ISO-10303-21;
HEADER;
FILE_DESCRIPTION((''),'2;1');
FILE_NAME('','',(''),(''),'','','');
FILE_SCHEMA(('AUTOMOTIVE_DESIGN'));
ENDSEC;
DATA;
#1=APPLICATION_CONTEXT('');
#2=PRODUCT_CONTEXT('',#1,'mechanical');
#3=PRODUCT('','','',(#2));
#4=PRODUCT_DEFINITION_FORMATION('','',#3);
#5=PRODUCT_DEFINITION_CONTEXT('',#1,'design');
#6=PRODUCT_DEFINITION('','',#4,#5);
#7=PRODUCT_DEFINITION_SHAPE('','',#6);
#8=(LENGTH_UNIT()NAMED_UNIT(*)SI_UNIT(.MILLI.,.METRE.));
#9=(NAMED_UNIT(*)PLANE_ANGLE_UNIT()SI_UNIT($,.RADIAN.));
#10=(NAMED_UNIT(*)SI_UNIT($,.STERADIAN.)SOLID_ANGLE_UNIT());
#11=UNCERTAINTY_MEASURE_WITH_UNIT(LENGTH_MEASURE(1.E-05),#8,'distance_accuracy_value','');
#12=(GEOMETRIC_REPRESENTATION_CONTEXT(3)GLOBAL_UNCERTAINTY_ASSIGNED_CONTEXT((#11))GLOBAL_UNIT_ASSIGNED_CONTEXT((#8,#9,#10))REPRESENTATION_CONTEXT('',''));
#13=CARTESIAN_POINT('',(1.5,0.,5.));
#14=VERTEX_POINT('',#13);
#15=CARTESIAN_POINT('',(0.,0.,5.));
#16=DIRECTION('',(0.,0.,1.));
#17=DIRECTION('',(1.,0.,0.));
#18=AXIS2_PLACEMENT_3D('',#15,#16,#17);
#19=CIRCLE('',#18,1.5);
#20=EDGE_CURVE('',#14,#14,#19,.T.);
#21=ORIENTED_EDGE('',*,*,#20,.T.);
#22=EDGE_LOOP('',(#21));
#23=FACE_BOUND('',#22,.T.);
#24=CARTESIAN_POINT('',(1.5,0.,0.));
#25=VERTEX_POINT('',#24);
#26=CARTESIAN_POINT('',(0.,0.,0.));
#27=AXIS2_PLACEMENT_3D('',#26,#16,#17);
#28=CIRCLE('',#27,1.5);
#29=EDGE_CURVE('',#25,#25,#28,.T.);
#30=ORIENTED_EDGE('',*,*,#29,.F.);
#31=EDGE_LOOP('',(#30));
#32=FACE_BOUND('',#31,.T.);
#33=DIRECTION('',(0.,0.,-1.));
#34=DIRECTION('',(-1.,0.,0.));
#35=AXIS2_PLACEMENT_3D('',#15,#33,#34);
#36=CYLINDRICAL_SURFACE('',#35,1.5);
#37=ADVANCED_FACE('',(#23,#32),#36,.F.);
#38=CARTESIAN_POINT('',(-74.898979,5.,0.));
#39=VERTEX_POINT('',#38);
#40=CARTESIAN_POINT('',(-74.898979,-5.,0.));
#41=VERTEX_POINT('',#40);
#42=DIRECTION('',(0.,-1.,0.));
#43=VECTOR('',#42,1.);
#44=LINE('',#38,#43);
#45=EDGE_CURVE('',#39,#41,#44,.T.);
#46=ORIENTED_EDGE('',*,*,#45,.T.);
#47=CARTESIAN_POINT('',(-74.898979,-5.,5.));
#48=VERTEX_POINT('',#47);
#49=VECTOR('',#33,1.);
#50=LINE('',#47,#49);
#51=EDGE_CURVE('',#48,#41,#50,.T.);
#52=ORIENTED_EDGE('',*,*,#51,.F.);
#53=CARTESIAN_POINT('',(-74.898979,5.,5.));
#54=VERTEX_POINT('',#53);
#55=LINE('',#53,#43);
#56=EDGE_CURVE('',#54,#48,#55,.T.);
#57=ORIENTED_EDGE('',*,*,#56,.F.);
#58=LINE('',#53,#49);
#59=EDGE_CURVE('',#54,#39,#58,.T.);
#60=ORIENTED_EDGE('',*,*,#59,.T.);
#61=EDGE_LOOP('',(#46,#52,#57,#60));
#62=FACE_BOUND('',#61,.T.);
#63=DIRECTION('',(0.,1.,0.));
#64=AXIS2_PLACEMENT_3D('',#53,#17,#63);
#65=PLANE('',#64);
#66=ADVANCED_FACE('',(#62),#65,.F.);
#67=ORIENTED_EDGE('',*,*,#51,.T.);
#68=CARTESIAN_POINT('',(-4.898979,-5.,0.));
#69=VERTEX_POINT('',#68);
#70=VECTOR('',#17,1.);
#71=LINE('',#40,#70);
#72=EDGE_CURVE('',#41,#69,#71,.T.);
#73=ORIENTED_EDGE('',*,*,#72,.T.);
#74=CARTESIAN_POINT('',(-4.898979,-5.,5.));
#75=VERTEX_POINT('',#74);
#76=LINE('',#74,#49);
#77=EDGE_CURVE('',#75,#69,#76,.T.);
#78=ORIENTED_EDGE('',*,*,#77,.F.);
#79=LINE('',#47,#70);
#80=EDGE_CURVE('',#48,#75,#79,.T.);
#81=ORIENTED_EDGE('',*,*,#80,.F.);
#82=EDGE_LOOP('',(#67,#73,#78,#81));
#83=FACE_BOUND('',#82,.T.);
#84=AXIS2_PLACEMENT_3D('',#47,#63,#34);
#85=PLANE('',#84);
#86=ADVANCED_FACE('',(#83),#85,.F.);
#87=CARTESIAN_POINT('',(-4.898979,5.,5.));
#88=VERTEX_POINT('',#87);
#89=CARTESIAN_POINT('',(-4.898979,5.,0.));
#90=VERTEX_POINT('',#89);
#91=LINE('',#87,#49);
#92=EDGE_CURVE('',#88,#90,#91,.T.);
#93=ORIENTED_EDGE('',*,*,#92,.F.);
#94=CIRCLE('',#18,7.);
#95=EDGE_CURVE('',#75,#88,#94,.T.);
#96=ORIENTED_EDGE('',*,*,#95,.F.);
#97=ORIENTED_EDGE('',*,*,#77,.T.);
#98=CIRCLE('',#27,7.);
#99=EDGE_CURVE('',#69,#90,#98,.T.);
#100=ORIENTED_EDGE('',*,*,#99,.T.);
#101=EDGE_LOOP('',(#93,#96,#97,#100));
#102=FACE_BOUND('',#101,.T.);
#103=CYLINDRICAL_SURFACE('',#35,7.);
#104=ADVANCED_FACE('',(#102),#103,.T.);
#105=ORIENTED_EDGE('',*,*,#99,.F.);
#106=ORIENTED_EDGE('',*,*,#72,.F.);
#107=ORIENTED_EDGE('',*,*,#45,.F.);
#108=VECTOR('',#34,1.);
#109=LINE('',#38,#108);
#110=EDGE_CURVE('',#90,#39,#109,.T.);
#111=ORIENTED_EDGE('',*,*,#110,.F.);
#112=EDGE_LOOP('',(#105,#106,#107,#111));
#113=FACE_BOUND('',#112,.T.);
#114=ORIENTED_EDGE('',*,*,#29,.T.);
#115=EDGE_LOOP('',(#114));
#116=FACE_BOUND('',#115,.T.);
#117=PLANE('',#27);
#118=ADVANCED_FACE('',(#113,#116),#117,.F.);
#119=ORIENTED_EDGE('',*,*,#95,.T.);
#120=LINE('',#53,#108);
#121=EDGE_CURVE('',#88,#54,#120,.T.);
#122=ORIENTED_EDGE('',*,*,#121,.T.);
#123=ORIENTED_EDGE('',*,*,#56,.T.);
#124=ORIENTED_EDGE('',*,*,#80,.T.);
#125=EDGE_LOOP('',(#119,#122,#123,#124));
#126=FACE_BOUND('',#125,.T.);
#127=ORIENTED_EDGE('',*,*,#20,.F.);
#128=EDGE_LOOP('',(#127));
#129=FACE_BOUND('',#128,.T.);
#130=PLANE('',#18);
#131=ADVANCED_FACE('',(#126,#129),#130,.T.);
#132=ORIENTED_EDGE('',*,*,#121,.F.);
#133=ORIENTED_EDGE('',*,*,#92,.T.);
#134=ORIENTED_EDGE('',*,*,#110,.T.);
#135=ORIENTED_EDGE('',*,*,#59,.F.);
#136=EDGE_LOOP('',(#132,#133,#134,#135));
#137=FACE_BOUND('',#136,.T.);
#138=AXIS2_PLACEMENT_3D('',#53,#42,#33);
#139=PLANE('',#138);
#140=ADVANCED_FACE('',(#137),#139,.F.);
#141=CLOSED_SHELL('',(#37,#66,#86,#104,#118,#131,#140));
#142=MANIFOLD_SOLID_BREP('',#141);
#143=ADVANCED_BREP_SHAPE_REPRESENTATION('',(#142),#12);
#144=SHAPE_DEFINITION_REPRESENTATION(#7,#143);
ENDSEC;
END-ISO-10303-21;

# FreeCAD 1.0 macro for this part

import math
import FreeCAD as App
import Part
import Sketcher

V = App.Vector

doc = App.newDocument("Part")
body = doc.addObject("PartDesign::Body", "Body")

sketch1 = body.newObject("Sketcher::SketchObject", "Sketch")
sketch1.AttachmentSupport = (doc.getObject("XY_Plane"), [""])
sketch1.MapMode = "FlatFace"
sketch1.addGeometry(Part.LineSegment(V(-4.898979, 5, 0), V(-74.898979, 5, 0)), False)
sketch1.addGeometry(Part.LineSegment(V(-74.898979, 5, 0), V(-74.898979, -5, 0)), False)
sketch1.addGeometry(Part.LineSegment(V(-74.898979, -5, 0), V(-4.898979, -5, 0)), False)
sketch1.addGeometry(Part.ArcOfCircle(Part.Circle(V(0, 0, 0), V(0, 0, 1), 7), math.radians(-134.415309), math.radians(134.415309)), False)
sketch1.addGeometry(Part.Circle(V(0, 0, 0), V(0, 0, 1), 1.5), False)
sketch1.addConstraint(Sketcher.Constraint("Coincident", 0, 2, 1, 1))
sketch1.addConstraint(Sketcher.Constraint("Coincident", 1, 2, 2, 1))
sketch1.addConstraint(Sketcher.Constraint("Coincident", 2, 2, 3, 1))
sketch1.addConstraint(Sketcher.Constraint("Coincident", 3, 2, 0, 1))
sketch1.addConstraint(Sketcher.Constraint("Horizontal", 0))
sketch1.addConstraint(Sketcher.Constraint("Vertical", 1))
sketch1.addConstraint(Sketcher.Constraint("Horizontal", 2))
sketch1.addConstraint(Sketcher.Constraint("Coincident", 3, 3, -1, 1))
sketch1.addConstraint(Sketcher.Constraint("Coincident", 4, 3, -1, 1))
sketch1.addConstraint(Sketcher.Constraint("Vertical", 2, 2, 3, 2))
sketch1.addConstraint(Sketcher.Constraint("Diameter", 4, 3.0))
sketch1.addConstraint(Sketcher.Constraint("Radius", 3, 7.0))
sketch1.addConstraint(Sketcher.Constraint("DistanceX", 0, 2, 0, 1, 70.0))
sketch1.addConstraint(Sketcher.Constraint("DistanceY", 1, 2, 1, 1, 10.0))
pad1 = body.newObject("PartDesign::Pad", "Pad")
pad1.Profile = sketch1
pad1.Length = 5

doc.recompute()
